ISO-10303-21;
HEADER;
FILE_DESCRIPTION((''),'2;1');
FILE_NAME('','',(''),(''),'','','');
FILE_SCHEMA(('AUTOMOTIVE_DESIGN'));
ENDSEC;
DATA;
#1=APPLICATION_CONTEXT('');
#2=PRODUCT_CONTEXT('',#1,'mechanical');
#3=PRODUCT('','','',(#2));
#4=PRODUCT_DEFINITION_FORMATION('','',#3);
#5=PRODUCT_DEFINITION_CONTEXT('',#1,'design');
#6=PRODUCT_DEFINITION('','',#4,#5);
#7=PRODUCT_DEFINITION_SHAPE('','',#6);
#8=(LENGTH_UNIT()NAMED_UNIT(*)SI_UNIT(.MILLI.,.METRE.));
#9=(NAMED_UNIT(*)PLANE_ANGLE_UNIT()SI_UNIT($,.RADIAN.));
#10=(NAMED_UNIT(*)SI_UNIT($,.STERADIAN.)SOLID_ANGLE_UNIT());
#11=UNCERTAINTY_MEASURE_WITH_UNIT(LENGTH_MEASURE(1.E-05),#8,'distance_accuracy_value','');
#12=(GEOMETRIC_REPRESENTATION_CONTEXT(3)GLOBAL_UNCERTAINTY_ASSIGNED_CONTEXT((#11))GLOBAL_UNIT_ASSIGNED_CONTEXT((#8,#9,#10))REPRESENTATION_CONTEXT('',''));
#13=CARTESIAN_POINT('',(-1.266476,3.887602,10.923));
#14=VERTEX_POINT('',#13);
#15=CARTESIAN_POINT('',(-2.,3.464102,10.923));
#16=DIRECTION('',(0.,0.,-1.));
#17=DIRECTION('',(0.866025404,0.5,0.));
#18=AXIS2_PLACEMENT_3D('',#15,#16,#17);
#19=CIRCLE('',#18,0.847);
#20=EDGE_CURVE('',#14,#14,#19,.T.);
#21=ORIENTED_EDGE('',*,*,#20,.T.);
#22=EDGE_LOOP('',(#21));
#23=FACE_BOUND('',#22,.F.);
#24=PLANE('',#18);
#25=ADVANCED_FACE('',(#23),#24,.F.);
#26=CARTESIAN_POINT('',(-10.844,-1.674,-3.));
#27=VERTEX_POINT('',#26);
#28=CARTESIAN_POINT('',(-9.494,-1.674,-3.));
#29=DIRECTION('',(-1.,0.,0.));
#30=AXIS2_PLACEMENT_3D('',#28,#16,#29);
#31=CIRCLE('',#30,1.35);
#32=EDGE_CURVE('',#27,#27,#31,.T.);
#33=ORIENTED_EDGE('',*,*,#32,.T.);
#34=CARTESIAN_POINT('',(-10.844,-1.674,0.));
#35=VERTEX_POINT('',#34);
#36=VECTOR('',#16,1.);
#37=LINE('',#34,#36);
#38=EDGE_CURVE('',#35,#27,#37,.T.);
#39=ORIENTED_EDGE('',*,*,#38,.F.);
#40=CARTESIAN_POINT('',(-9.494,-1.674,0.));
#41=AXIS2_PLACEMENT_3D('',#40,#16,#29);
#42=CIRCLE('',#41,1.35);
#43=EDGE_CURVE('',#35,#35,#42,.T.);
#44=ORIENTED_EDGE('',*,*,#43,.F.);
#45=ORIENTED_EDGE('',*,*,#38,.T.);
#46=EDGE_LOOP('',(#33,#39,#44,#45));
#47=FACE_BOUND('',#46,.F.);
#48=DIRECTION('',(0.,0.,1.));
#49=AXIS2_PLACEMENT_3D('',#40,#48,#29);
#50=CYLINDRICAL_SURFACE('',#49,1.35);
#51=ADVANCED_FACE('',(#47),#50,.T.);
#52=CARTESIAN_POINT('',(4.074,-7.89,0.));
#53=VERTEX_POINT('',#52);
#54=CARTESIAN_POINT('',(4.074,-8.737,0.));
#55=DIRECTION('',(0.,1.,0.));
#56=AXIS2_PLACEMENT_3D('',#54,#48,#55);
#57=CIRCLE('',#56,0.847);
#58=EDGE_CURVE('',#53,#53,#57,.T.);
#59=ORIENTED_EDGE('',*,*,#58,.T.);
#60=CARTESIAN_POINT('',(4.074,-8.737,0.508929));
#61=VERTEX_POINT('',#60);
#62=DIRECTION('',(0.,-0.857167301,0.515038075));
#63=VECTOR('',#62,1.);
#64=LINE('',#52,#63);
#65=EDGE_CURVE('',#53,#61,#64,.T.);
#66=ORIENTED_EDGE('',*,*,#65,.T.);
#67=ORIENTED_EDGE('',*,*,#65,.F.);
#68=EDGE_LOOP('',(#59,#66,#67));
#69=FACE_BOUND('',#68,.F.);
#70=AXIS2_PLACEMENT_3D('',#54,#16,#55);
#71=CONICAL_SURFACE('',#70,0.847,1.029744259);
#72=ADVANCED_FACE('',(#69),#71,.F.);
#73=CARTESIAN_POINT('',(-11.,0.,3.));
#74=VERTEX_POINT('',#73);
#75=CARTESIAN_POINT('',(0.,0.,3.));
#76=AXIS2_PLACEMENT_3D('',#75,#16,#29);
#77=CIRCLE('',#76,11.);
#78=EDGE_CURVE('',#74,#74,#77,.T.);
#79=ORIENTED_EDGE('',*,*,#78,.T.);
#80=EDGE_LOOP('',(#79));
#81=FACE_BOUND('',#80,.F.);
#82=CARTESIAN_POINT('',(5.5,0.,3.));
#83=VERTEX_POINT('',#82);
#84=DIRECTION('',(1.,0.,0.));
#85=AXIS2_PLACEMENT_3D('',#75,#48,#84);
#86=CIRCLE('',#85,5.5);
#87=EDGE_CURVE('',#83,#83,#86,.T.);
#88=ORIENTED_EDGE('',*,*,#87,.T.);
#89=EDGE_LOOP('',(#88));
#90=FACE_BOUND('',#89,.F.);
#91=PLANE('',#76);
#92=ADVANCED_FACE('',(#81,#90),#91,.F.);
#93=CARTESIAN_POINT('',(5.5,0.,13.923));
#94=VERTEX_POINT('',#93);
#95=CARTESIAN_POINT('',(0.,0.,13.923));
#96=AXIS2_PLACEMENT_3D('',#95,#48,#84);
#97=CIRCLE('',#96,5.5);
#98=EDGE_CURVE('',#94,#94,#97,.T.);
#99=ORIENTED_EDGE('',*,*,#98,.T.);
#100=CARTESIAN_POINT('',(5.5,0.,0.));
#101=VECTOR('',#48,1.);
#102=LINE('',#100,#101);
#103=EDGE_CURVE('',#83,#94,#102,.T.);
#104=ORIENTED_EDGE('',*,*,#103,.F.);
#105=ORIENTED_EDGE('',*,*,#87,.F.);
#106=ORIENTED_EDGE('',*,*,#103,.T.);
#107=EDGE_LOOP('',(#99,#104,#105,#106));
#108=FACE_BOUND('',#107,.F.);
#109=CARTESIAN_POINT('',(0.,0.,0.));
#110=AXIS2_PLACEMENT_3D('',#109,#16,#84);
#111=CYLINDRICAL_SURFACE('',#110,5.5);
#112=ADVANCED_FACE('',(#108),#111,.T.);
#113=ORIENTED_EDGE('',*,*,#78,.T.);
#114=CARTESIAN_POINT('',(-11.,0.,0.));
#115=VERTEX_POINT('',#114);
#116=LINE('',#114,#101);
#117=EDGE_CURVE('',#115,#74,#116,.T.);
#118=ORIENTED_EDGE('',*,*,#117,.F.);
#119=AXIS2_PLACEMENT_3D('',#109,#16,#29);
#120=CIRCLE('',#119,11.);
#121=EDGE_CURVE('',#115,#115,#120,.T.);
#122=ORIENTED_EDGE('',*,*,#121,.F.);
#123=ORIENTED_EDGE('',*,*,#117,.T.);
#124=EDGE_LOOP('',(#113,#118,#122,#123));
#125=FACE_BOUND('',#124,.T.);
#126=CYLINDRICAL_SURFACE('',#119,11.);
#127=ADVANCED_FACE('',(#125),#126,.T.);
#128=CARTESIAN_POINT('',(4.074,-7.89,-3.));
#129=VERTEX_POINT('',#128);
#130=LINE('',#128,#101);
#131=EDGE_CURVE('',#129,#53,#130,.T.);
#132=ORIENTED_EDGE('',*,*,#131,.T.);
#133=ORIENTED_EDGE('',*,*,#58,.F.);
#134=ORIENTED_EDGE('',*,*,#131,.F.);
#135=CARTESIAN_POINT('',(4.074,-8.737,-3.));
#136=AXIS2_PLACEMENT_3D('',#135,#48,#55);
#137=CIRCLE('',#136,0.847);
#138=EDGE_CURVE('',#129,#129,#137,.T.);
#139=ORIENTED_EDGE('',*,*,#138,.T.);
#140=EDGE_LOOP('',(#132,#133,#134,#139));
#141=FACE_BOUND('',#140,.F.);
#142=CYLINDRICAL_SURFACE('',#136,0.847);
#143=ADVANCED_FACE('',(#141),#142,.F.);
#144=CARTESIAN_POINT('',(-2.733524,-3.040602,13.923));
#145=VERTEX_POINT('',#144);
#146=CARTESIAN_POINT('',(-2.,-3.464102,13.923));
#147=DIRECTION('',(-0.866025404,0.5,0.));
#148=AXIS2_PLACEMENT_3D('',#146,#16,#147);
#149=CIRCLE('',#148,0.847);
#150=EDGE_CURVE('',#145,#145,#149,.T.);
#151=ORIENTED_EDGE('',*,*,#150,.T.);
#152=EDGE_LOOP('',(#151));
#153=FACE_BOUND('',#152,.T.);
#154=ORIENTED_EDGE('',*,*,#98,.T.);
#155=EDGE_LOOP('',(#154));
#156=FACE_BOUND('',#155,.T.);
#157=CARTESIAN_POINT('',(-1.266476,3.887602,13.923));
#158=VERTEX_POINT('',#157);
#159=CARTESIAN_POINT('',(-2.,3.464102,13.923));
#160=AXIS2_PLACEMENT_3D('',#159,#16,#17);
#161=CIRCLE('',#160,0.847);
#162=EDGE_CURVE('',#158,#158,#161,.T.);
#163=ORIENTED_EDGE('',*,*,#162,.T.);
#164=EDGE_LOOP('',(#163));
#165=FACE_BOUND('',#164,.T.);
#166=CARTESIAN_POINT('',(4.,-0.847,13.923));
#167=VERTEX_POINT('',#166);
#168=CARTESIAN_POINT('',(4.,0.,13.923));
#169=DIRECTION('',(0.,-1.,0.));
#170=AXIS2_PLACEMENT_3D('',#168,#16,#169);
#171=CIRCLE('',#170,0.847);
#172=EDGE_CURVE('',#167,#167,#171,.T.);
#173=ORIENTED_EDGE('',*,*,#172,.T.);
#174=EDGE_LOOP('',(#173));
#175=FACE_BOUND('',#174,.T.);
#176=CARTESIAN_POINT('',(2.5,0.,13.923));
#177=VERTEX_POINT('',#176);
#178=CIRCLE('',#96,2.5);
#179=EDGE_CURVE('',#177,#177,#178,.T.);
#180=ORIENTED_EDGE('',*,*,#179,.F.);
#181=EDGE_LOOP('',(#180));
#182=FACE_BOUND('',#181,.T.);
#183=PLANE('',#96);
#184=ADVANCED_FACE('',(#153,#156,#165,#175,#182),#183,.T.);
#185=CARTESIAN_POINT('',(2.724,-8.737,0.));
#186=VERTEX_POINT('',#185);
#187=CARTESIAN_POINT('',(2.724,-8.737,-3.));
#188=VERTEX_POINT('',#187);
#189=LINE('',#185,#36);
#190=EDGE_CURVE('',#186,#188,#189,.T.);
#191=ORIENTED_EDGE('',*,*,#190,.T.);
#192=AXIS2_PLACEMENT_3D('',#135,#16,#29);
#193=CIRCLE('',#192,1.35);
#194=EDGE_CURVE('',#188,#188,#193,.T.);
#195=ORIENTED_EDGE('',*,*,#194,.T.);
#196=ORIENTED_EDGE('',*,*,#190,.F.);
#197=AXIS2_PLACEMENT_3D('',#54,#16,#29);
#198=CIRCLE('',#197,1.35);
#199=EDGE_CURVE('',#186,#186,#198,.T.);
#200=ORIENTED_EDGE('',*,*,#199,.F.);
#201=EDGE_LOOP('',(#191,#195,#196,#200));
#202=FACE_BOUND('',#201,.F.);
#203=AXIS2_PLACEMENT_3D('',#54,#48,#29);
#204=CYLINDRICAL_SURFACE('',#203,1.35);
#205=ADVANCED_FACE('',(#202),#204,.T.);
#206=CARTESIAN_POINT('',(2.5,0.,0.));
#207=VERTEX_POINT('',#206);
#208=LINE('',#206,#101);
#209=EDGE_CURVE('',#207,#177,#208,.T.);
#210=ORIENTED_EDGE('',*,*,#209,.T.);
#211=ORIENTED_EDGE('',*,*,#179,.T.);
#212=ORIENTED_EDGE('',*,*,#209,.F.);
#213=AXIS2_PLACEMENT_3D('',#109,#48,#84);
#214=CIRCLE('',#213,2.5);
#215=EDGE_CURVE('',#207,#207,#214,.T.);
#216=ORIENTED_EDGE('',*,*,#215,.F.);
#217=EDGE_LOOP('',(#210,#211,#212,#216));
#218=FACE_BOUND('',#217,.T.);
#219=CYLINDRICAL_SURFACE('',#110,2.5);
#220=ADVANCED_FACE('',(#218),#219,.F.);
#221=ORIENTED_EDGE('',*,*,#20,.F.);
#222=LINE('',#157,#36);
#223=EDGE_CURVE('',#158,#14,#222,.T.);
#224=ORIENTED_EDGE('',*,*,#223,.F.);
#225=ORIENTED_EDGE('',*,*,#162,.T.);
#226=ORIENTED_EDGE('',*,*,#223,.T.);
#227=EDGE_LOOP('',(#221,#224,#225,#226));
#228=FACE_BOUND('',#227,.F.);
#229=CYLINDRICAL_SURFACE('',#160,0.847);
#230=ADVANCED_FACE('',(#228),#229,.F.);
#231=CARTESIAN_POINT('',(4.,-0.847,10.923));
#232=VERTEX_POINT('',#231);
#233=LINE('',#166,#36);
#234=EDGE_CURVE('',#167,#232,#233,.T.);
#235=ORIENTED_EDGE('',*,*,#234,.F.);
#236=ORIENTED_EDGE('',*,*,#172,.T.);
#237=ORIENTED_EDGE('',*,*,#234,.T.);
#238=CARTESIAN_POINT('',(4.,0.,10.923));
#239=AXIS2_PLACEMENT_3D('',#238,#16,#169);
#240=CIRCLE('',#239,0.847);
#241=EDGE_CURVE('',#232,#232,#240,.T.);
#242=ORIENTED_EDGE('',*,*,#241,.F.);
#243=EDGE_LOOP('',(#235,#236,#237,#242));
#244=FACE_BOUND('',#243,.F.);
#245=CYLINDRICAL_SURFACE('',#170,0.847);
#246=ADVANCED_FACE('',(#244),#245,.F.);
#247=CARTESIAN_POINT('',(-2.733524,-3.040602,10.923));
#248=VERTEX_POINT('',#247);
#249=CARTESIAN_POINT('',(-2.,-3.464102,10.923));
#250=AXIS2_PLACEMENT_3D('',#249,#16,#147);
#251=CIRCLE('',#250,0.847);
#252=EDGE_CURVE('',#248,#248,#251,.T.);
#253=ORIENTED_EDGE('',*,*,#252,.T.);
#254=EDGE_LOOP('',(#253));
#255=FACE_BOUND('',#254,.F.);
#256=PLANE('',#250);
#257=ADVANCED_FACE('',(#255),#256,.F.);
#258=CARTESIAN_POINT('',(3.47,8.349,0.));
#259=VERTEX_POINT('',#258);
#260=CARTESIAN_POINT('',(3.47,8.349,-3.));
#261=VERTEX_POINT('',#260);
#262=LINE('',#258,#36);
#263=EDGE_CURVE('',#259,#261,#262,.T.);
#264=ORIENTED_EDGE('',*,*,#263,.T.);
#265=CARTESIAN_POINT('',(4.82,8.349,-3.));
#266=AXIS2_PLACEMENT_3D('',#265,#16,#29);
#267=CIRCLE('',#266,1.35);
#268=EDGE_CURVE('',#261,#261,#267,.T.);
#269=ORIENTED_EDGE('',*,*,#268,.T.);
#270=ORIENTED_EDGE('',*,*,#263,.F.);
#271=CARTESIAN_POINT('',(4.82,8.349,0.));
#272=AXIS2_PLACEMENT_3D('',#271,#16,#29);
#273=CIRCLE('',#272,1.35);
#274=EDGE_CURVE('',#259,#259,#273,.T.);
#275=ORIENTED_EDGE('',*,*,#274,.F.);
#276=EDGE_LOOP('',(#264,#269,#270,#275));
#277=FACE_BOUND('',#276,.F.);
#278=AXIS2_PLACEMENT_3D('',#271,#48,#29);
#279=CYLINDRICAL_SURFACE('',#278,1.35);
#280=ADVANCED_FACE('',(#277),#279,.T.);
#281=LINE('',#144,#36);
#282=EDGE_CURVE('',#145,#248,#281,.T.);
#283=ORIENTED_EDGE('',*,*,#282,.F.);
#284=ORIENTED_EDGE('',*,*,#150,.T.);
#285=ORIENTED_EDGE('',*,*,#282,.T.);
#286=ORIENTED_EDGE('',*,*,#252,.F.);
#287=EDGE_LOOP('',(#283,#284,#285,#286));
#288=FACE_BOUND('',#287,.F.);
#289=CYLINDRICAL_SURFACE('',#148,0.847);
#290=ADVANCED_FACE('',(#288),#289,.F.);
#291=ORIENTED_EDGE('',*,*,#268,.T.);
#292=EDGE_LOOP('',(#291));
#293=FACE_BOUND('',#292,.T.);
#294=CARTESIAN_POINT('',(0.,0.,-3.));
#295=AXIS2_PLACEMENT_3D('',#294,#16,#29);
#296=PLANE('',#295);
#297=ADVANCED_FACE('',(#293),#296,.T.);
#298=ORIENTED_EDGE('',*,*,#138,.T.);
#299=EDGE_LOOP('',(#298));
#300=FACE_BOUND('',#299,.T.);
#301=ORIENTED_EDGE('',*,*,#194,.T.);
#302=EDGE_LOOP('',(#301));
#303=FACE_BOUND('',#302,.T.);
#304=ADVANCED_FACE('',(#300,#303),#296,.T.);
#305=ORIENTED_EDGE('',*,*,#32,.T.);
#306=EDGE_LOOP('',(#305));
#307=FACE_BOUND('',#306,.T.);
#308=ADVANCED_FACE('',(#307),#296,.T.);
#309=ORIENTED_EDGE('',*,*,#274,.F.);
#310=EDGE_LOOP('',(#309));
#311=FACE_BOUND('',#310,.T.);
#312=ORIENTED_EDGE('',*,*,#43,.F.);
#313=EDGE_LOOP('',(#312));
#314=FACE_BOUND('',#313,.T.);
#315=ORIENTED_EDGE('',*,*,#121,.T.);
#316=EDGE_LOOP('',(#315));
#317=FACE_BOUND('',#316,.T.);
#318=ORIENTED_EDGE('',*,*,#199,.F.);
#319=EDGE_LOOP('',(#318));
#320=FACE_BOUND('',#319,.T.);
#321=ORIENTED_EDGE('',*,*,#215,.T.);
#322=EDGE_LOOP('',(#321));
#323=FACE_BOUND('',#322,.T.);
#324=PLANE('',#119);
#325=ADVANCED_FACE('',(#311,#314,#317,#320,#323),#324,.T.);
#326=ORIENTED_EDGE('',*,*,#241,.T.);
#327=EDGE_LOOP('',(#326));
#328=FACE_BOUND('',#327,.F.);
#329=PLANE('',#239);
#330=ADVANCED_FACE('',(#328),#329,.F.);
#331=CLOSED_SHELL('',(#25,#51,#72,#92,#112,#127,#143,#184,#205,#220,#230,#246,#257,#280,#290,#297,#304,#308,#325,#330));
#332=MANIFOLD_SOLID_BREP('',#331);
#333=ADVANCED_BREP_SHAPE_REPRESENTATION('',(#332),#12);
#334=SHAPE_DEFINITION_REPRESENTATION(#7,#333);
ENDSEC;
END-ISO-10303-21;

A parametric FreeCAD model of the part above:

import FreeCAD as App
import Part
import Sketcher
Q = App.Units.Quantity

doc = App.newDocument("Part")
params = doc.addObject("Spreadsheet::Sheet", "Params")
for row, (alias, value) in enumerate([
    ("sketch1_diameter", "11 mm"),
    ("sketch1_diameter2", "5 mm"),
    ("pad1_length", "13.923 mm"),
    ("sketch2_diameter", "22 mm"),
    ("sketch2_diameter2", "11 mm"),
    ("pad2_length", "3 mm"),
    ("sketch3_diameter", "2.7 mm"),
    ("pad3_length", "3 mm"),
    ("hole_diameter", "1.694 mm"),
    ("hole_depth", "3 mm"),
    ("hole2_diameter", "1.694 mm"),
    ("hole2_depth", "3 mm"),
], start=1):
    params.set(f"A{row}", alias)
    params.set(f"B{row}", "=" + value)
    params.setAlias(f"B{row}", alias)

body = doc.addObject("PartDesign::Body", "Body")

sketch1 = body.newObject("Sketcher::SketchObject", "Sketch")
sketch1.AttachmentSupport = (doc.getObject("XY_Plane"), [""])
sketch1.MapMode = "FlatFace"
sketch1.addGeometry([
    Part.Circle(App.Vector(0, 0, 0), App.Vector(0, 0, 1), 5.5),
    Part.Circle(App.Vector(0, 0, 0), App.Vector(0, 0, 1), 2.5),
], False)
sketch1.addConstraint([
    Sketcher.Constraint("Coincident", 0, 3, -1, 1),
    Sketcher.Constraint("Coincident", 1, 3, -1, 1),
    Sketcher.Constraint("Diameter", 0, Q("11 mm")),
    Sketcher.Constraint("Diameter", 1, Q("5 mm")),
])
sketch1.setExpression("Constraints[2]", "Params.sketch1_diameter")
sketch1.setExpression("Constraints[3]", "Params.sketch1_diameter2")
pad1 = body.newObject("PartDesign::Pad", "Pad")
pad1.Profile = sketch1
pad1.setExpression("Length", "Params.pad1_length")

sketch2 = body.newObject("Sketcher::SketchObject", "Sketch001")
sketch2.AttachmentSupport = (doc.getObject("XY_Plane"), [""])
sketch2.MapMode = "FlatFace"
sketch2.addGeometry([
    Part.Circle(App.Vector(0, 0, 0), App.Vector(0, 0, 1), 11),
    Part.Circle(App.Vector(0, 0, 0), App.Vector(0, 0, 1), 6),
], False)
sketch2.addConstraint([
    Sketcher.Constraint("Coincident", 0, 3, -1, 1),
    Sketcher.Constraint("Coincident", 1, 3, -1, 1),
    Sketcher.Constraint("Diameter", 0, Q("22 mm")),
    Sketcher.Constraint("Diameter", 1, Q("11 mm")),
])
sketch2.setExpression("Constraints[2]", "Params.sketch2_diameter")
sketch2.setExpression("Constraints[3]", "Params.sketch2_diameter2")
pad2 = body.newObject("PartDesign::Pad", "Pad001")
pad2.Profile = sketch2
pad2.setExpression("Length", "Params.pad2_length")

sketch3 = body.newObject("Sketcher::SketchObject", "Sketch002")
sketch3.AttachmentSupport = (doc.getObject("XY_Plane"), [""])
sketch3.MapMode = "FlatFace"
sketch3.addGeometry([
    Part.Circle(App.Vector(-9.5, -1.7, 0), App.Vector(0, 0, 1), 1.4),
    Part.Circle(App.Vector(4.1, -8.7, 0), App.Vector(0, 0, 1), 1.4),
    Part.Circle(App.Vector(4.8, 8.3, 0), App.Vector(0, 0, 1), 1.4),
], False)
sketch3.addConstraint([
    Sketcher.Constraint("Equal", 0, 1),
    Sketcher.Constraint("Equal", 1, 2),
    Sketcher.Constraint("Diameter", 0, Q("2.7 mm")),
    Sketcher.Constraint("DistanceX", -1, 1, 2, 3, Q("4.82 mm")),
    Sketcher.Constraint("DistanceX", 0, 3, -1, 1, Q("9.494 mm")),
    Sketcher.Constraint("DistanceY", 0, 3, -1, 1, Q("1.674 mm")),
    Sketcher.Constraint("DistanceX", -1, 1, 1, 3, Q("4.074 mm")),
    Sketcher.Constraint("DistanceY", 1, 3, -1, 1, Q("8.737 mm")),
    Sketcher.Constraint("DistanceY", -1, 1, 2, 3, Q("8.349 mm")),
])
sketch3.setExpression("Constraints[2]", "Params.sketch3_diameter")
pad3 = body.newObject("PartDesign::Pad", "Pad002")
pad3.Profile = sketch3
pad3.setExpression("Length", "Params.pad3_length")
pad3.Reversed = True

sketch4 = body.newObject("Sketcher::SketchObject", "Sketch003")
sketch4.AttachmentSupport = (doc.getObject("XY_Plane"), [""])
sketch4.MapMode = "FlatFace"
sketch4.AttachmentOffset = App.Placement(App.Vector(0, 0, 13.923), App.Rotation())
sketch4.addGeometry(Part.Circle(App.Vector(4, 0, 0), App.Vector(0, 0, 1), 0.8), False)
sketch4.addConstraint([
    Sketcher.Constraint("PointOnObject", 0, 3, -1),
    Sketcher.Constraint("Diameter", 0, Q("1.694 mm")),
    Sketcher.Constraint("DistanceX", -1, 1, 0, 3, Q("4 mm")),
])
doc.recompute()
hole = body.newObject("PartDesign::Hole", "Hole")
hole.Profile = sketch4
hole.ThreadType = "None"
hole.setExpression("Diameter", "Params.hole_diameter")
hole.DepthType = "Dimension"
hole.setExpression("Depth", "Params.hole_depth")
hole.DrillPoint = "Flat"
doc.recompute()

polarpattern = body.newObject("PartDesign::PolarPattern", "PolarPattern")
polarpattern.Originals = [hole]
polarpattern.Axis = (doc.getObject("Z_Axis"), [""])
polarpattern.Angle = 360
polarpattern.Occurrences = 3
body.Tip = polarpattern

sketch5 = body.newObject("Sketcher::SketchObject", "Sketch004")
sketch5.AttachmentSupport = (doc.getObject("XY_Plane"), [""])
sketch5.MapMode = "FlatFace"
sketch5.AttachmentOffset = App.Placement(App.Vector(0, 0, -3), App.Rotation())
sketch5.addGeometry(Part.Circle(App.Vector(4.1, -8.7, 0), App.Vector(0, 0, 1), 0.8), False)
sketch5.addConstraint([
    Sketcher.Constraint("Diameter", 0, Q("1.694 mm")),
    Sketcher.Constraint("DistanceX", -1, 1, 0, 3, Q("4.074 mm")),
    Sketcher.Constraint("DistanceY", 0, 3, -1, 1, Q("8.737 mm")),
])
doc.recompute()
hole2 = body.newObject("PartDesign::Hole", "Hole001")
hole2.Profile = sketch5
hole2.ThreadType = "None"
hole2.setExpression("Diameter", "Params.hole2_diameter")
hole2.DepthType = "Dimension"
hole2.setExpression("Depth", "Params.hole2_depth")
hole2.DrillPoint = "Angled"
hole2.DrillPointAngle = 118
hole2.Reversed = True

doc.recompute()
